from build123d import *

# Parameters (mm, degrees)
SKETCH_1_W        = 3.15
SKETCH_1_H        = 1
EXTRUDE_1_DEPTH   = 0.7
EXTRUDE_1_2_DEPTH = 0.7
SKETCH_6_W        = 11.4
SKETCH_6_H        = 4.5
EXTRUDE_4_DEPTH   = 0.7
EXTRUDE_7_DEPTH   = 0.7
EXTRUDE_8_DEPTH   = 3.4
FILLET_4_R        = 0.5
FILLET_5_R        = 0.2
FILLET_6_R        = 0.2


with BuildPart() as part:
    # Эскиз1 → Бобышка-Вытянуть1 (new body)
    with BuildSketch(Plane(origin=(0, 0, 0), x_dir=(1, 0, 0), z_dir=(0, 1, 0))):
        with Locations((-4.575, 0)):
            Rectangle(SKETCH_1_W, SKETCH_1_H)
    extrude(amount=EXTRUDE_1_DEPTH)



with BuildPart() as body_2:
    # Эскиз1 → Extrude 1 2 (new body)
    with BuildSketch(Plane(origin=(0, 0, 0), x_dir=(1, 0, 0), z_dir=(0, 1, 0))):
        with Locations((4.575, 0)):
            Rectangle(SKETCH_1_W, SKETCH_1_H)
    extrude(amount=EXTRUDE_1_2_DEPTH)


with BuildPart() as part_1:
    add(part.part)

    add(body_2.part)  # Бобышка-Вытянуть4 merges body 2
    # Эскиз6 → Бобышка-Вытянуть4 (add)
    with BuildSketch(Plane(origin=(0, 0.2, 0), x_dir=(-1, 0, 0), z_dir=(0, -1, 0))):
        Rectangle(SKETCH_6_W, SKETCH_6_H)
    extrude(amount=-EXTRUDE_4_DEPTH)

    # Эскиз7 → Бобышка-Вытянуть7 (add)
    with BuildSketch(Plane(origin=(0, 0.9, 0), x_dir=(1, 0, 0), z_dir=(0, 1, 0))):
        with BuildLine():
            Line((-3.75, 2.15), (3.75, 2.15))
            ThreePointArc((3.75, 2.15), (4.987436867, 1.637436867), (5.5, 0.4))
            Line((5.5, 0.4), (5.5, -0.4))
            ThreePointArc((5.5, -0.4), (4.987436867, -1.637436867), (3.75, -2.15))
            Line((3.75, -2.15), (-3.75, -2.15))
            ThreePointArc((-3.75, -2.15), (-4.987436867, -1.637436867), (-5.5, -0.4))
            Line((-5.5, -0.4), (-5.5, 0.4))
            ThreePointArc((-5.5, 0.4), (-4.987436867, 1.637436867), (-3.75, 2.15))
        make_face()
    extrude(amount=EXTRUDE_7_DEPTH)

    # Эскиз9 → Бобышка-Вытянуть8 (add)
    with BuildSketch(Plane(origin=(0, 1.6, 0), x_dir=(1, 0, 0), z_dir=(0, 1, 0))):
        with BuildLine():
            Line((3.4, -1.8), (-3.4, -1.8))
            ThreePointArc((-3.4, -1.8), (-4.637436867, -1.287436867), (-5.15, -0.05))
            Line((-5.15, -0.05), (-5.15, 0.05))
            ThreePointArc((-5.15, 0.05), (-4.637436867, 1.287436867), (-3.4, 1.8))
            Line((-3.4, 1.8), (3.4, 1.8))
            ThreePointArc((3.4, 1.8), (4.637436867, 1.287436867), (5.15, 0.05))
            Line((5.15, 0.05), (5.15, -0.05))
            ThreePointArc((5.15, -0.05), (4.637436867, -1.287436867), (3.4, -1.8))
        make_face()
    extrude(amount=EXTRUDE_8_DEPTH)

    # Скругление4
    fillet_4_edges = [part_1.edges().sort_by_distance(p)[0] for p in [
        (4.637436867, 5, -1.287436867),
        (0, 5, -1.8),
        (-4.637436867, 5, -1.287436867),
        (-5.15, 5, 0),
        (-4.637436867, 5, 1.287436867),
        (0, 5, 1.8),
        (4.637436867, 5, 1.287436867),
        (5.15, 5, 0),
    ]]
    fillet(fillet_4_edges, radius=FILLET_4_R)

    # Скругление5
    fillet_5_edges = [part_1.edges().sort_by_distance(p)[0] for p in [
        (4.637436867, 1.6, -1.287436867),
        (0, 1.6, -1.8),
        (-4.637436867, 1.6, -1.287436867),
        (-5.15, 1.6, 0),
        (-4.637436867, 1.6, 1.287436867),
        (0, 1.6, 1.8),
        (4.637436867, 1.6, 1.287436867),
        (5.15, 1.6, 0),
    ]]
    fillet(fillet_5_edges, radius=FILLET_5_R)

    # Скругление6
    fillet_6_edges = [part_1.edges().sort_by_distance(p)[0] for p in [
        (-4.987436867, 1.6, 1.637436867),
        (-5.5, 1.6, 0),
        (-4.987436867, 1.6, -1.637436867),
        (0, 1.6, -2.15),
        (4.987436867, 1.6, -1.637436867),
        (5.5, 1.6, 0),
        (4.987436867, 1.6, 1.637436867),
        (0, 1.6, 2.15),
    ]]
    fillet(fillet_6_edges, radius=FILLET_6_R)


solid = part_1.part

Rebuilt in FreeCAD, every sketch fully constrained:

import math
import FreeCAD as App
import Part
import Sketcher
from FreeCAD import Vector
Q = App.Units.Quantity


def edges_at(feature, points):
    """Names of the edges that pass closest to the given points."""
    edges = feature.Shape.Edges
    near = lambda p: min(range(len(edges)), key=lambda i: edges[i].distToShape(Part.Vertex(*p))[0])
    return sorted({f"Edge{near(p) + 1}" for p in points})


def add_polygon(sketch, points):
    """Adds a closed chain of lines whose ends are joined by coincident constraints."""
    first, n = sketch.GeometryCount, len(points)
    for a, b in zip(points, points[1:] + points[:1]):
        sketch.addGeometry(Part.LineSegment(App.Vector(*a, 0), App.Vector(*b, 0)), False)
    for i in range(n):
        sketch.addConstraint(Sketcher.Constraint("Coincident", first + i, 2, first + (i + 1) % n, 1))

doc = App.newDocument("Part")
body = doc.addObject("PartDesign::Body", "Body")

# Sketch on XZ plane
sketch1 = doc.addObject("Sketcher::SketchObject", "Sketch")
body.addObject(sketch1)
sketch1.AttachmentSupport = (doc.XZ_Plane, [""])
sketch1.MapMode = "FlatFace"
add_polygon(sketch1, [(-6.2, -0.5), (-6.2, 0.5), (-3, 0.5), (-3, -0.5)])  # lines 0-3
sketch1.addConstraint([
    Sketcher.Constraint("Vertical", 0),
    Sketcher.Constraint("Horizontal", 1),
    Sketcher.Constraint("Vertical", 2),
    Sketcher.Constraint("Horizontal", 3),
    Sketcher.Constraint("DistanceY", 0, 1, 0, 2, Q("1 mm")),
    Sketcher.Constraint("DistanceX", 1, 2, -1, 1, Q("3 mm")),
    Sketcher.Constraint("DistanceX", 1, 1, 1, 2, Q("3.15 mm")),
    Sketcher.Constraint("DistanceY", -1, 1, 0, 2, Q("0.5 mm")),
])
pad1 = doc.addObject("PartDesign::Pad", "Pad")
body.addObject(pad1)
pad1.Profile = sketch1
pad1.Length = 0.7
pad1.Reversed = True
body2 = doc.addObject("PartDesign::Body", "Body001")

# Sketch on XZ plane
sketch2 = doc.addObject("Sketcher::SketchObject", "Sketch001")
body2.addObject(sketch2)
sketch2.AttachmentSupport = (doc.getObject("XZ_Plane001"), [""])
sketch2.MapMode = "FlatFace"
add_polygon(sketch2, [(3, -0.5), (3, 0.5), (6.2, 0.5), (6.2, -0.5)])  # lines 0-3
sketch2.addConstraint([
    Sketcher.Constraint("Vertical", 0),
    Sketcher.Constraint("Horizontal", 1),
    Sketcher.Constraint("Vertical", 2),
    Sketcher.Constraint("Horizontal", 3),
    Sketcher.Constraint("DistanceY", 0, 1, 0, 2, Q("1 mm")),
    Sketcher.Constraint("DistanceX", -1, 1, 0, 2, Q("3 mm")),
    Sketcher.Constraint("DistanceX", 1, 1, 1, 2, Q("3.15 mm")),
    Sketcher.Constraint("DistanceY", -1, 1, 0, 2, Q("0.5 mm")),
])
pad2 = doc.addObject("PartDesign::Pad", "Pad001")
body2.addObject(pad2)
pad2.Profile = sketch2
pad2.Length = 0.7
pad2.Reversed = True
body.AllowCompound = True
doc.recompute()

boolean = doc.addObject("PartDesign::Boolean", "Boolean")
body.addObject(boolean)
boolean.Type = "Fuse"
boolean.addObjects([body2])

# Sketch on XZ plane
sketch3 = doc.addObject("Sketcher::SketchObject", "Sketch002")
body.addObject(sketch3)
sketch3.AttachmentSupport = (doc.XZ_Plane, [""])
sketch3.MapMode = "FlatFace"
sketch3.AttachmentOffset = App.Placement(Vector(0, 0, -0.2), App.Rotation())
add_polygon(sketch3, [(5.7, -2.2), (5.7, 2.2), (-5.7, 2.2), (-5.7, -2.2)])  # lines 0-3
sketch3.addConstraint([
    Sketcher.Constraint("Vertical", 0),
    Sketcher.Constraint("Horizontal", 1),
    Sketcher.Constraint("Vertical", 2),
    Sketcher.Constraint("Horizontal", 3),
    Sketcher.Constraint("Symmetric", 0, 2, 2, 2, -1, 1),
    Sketcher.Constraint("DistanceX", 1, 2, 1, 1, Q("11.4 mm")),
    Sketcher.Constraint("DistanceY", 0, 1, 0, 2, Q("4.5 mm")),
])
pad3 = doc.addObject("PartDesign::Pad", "Pad002")
body.addObject(pad3)
pad3.Profile = sketch3
pad3.Length = 0.7
pad3.Reversed = True

# Sketch on XZ plane
sketch4 = doc.addObject("Sketcher::SketchObject", "Sketch003")
body.addObject(sketch4)
sketch4.AttachmentSupport = (doc.XZ_Plane, [""])
sketch4.MapMode = "FlatFace"
sketch4.AttachmentOffset = App.Placement(Vector(0, 0, -0.9), App.Rotation())
sketch4.addGeometry([
    Part.LineSegment(Vector(3.8, -2.1, 0), Vector(-3.8, -2.1, 0)),  # 0
    Part.ArcOfCircle(Part.Circle(Vector(-3.8, -0.4, 0), Vector(0, 0, 1), 1.8), math.radians(180), math.radians(270)),  # 1
    Part.LineSegment(Vector(-5.5, -0.4, 0), Vector(-5.5, 0.4, 0)),  # 2
    Part.ArcOfCircle(Part.Circle(Vector(-3.8, 0.4, 0), Vector(0, 0, 1), 1.8), math.radians(90), math.radians(180)),  # 3
    Part.LineSegment(Vector(-3.8, 2.1, 0), Vector(3.8, 2.1, 0)),  # 4
    Part.ArcOfCircle(Part.Circle(Vector(3.8, 0.4, 0), Vector(0, 0, 1), 1.8), math.radians(0), math.radians(90)),  # 5
    Part.LineSegment(Vector(5.5, 0.4, 0), Vector(5.5, -0.4, 0)),  # 6
    Part.ArcOfCircle(Part.Circle(Vector(3.8, -0.4, 0), Vector(0, 0, 1), 1.8), math.radians(-90), math.radians(0)),  # 7
], False)
sketch4.addConstraint([
    Sketcher.Constraint("Tangent", 0, 2, 1, 2),
    Sketcher.Constraint("Tangent", 1, 1, 2, 1),
    Sketcher.Constraint("Tangent", 2, 2, 3, 2),
    Sketcher.Constraint("Tangent", 3, 1, 4, 1),
    Sketcher.Constraint("Tangent", 4, 2, 5, 2),
    Sketcher.Constraint("Tangent", 5, 1, 6, 1),
    Sketcher.Constraint("Tangent", 6, 2, 7, 2),
    Sketcher.Constraint("Tangent", 7, 1, 0, 1),
    Sketcher.Constraint("Horizontal", 0),
    Sketcher.Constraint("Vertical", 2),
    Sketcher.Constraint("Horizontal", 4),
    Sketcher.Constraint("Vertical", 6),
    Sketcher.Constraint("Equal", 1, 3),
    Sketcher.Constraint("Equal", 3, 5),
    Sketcher.Constraint("Equal", 5, 7),
    Sketcher.Constraint("Symmetric", 1, 3, 5, 3, -1, 1),
    Sketcher.Constraint("Radius", 1, Q("1.75 mm")),
    Sketcher.Constraint("DistanceX", 0, 2, 0, 1, Q("7.5 mm")),
    Sketcher.Constraint("DistanceY", 2, 1, 2, 2, Q("0.8 mm")),
])
pad4 = doc.addObject("PartDesign::Pad", "Pad003")
body.addObject(pad4)
pad4.Profile = sketch4
pad4.Length = 0.7
pad4.Reversed = True

# Sketch on XZ plane
sketch5 = doc.addObject("Sketcher::SketchObject", "Sketch004")
body.addObject(sketch5)
sketch5.AttachmentSupport = (doc.XZ_Plane, [""])
sketch5.MapMode = "FlatFace"
sketch5.AttachmentOffset = App.Placement(Vector(0, 0, -1.6), App.Rotation())
sketch5.addGeometry([
    Part.LineSegment(Vector(-3.4, 1.8, 0), Vector(3.4, 1.8, 0)),  # 0
    Part.ArcOfCircle(Part.Circle(Vector(3.4, 0.05, 0), Vector(0, 0, 1), 1.75), math.radians(0), math.radians(90)),  # 1
    Part.LineSegment(Vector(5.15, 0.05, 0), Vector(5.15, -0.05, 0)),  # 2
    Part.ArcOfCircle(Part.Circle(Vector(3.4, -0.05, 0), Vector(0, 0, 1), 1.75), math.radians(-90), math.radians(0)),  # 3
    Part.LineSegment(Vector(3.4, -1.8, 0), Vector(-3.4, -1.8, 0)),  # 4
    Part.ArcOfCircle(Part.Circle(Vector(-3.4, -0.05, 0), Vector(0, 0, 1), 1.75), math.radians(180), math.radians(270)),  # 5
    Part.LineSegment(Vector(-5.15, -0.05, 0), Vector(-5.15, 0.05, 0)),  # 6
    Part.ArcOfCircle(Part.Circle(Vector(-3.4, 0.05, 0), Vector(0, 0, 1), 1.75), math.radians(90), math.radians(180)),  # 7
], False)
sketch5.addConstraint([
    Sketcher.Constraint("Tangent", 0, 2, 1, 2),
    Sketcher.Constraint("Tangent", 1, 1, 2, 1),
    Sketcher.Constraint("Tangent", 2, 2, 3, 2),
    Sketcher.Constraint("Tangent", 3, 1, 4, 1),
    Sketcher.Constraint("Tangent", 4, 2, 5, 2),
    Sketcher.Constraint("Tangent", 5, 1, 6, 1),
    Sketcher.Constraint("Tangent", 6, 2, 7, 2),
    Sketcher.Constraint("Tangent", 7, 1, 0, 1),
    Sketcher.Constraint("Horizontal", 0),
    Sketcher.Constraint("Vertical", 2),
    Sketcher.Constraint("Horizontal", 4),
    Sketcher.Constraint("Vertical", 6),
    Sketcher.Constraint("Equal", 1, 3),
    Sketcher.Constraint("Equal", 3, 5),
    Sketcher.Constraint("Equal", 5, 7),
    Sketcher.Constraint("Symmetric", 1, 3, 5, 3, -1, 1),
    Sketcher.Constraint("Radius", 1, Q("1.75 mm")),
    Sketcher.Constraint("DistanceX", 0, 1, 0, 2, Q("6.8 mm")),
    Sketcher.Constraint("DistanceY", 2, 2, 2, 1, Q("0.1 mm")),
])
pad5 = doc.addObject("PartDesign::Pad", "Pad004")
body.addObject(pad5)
pad5.Profile = sketch5
pad5.Length = 3.4
pad5.Reversed = True
doc.recompute()

fillet = doc.addObject("PartDesign::Fillet", "Fillet")
body.addObject(fillet)
fillet.Base = (pad5, edges_at(pad5, [
    (4.637, 5, -1.287),
    (0, 5, -1.8),
    (-4.637, 5, -1.287),
    (-5.15, 5, 0),
    (-4.637, 5, 1.287),
    (0, 5, 1.8),
    (4.637, 5, 1.287),
    (5.15, 5, 0),
]))
fillet.Radius = 0.5
doc.recompute()

fillet2 = doc.addObject("PartDesign::Fillet", "Fillet001")
body.addObject(fillet2)
fillet2.Base = (fillet, edges_at(fillet, [
    (4.637, 1.6, -1.287),
    (0, 1.6, -1.8),
    (-4.637, 1.6, -1.287),
    (-5.15, 1.6, 0),
    (-4.637, 1.6, 1.287),
    (0, 1.6, 1.8),
    (4.637, 1.6, 1.287),
    (5.15, 1.6, 0),
]))
fillet2.Radius = 0.2
doc.recompute()

fillet3 = doc.addObject("PartDesign::Fillet", "Fillet002")
body.addObject(fillet3)
fillet3.Base = (fillet2, edges_at(fillet2, [
    (-4.987, 1.6, 1.637),
    (-5.5, 1.6, 0),
    (-4.987, 1.6, -1.637),
    (0, 1.6, -2.15),
    (4.987, 1.6, -1.637),
    (5.5, 1.6, 0),
    (4.987, 1.6, 1.637),
    (0, 1.6, 2.15),
]))
fillet3.Radius = 0.2

doc.recompute()
